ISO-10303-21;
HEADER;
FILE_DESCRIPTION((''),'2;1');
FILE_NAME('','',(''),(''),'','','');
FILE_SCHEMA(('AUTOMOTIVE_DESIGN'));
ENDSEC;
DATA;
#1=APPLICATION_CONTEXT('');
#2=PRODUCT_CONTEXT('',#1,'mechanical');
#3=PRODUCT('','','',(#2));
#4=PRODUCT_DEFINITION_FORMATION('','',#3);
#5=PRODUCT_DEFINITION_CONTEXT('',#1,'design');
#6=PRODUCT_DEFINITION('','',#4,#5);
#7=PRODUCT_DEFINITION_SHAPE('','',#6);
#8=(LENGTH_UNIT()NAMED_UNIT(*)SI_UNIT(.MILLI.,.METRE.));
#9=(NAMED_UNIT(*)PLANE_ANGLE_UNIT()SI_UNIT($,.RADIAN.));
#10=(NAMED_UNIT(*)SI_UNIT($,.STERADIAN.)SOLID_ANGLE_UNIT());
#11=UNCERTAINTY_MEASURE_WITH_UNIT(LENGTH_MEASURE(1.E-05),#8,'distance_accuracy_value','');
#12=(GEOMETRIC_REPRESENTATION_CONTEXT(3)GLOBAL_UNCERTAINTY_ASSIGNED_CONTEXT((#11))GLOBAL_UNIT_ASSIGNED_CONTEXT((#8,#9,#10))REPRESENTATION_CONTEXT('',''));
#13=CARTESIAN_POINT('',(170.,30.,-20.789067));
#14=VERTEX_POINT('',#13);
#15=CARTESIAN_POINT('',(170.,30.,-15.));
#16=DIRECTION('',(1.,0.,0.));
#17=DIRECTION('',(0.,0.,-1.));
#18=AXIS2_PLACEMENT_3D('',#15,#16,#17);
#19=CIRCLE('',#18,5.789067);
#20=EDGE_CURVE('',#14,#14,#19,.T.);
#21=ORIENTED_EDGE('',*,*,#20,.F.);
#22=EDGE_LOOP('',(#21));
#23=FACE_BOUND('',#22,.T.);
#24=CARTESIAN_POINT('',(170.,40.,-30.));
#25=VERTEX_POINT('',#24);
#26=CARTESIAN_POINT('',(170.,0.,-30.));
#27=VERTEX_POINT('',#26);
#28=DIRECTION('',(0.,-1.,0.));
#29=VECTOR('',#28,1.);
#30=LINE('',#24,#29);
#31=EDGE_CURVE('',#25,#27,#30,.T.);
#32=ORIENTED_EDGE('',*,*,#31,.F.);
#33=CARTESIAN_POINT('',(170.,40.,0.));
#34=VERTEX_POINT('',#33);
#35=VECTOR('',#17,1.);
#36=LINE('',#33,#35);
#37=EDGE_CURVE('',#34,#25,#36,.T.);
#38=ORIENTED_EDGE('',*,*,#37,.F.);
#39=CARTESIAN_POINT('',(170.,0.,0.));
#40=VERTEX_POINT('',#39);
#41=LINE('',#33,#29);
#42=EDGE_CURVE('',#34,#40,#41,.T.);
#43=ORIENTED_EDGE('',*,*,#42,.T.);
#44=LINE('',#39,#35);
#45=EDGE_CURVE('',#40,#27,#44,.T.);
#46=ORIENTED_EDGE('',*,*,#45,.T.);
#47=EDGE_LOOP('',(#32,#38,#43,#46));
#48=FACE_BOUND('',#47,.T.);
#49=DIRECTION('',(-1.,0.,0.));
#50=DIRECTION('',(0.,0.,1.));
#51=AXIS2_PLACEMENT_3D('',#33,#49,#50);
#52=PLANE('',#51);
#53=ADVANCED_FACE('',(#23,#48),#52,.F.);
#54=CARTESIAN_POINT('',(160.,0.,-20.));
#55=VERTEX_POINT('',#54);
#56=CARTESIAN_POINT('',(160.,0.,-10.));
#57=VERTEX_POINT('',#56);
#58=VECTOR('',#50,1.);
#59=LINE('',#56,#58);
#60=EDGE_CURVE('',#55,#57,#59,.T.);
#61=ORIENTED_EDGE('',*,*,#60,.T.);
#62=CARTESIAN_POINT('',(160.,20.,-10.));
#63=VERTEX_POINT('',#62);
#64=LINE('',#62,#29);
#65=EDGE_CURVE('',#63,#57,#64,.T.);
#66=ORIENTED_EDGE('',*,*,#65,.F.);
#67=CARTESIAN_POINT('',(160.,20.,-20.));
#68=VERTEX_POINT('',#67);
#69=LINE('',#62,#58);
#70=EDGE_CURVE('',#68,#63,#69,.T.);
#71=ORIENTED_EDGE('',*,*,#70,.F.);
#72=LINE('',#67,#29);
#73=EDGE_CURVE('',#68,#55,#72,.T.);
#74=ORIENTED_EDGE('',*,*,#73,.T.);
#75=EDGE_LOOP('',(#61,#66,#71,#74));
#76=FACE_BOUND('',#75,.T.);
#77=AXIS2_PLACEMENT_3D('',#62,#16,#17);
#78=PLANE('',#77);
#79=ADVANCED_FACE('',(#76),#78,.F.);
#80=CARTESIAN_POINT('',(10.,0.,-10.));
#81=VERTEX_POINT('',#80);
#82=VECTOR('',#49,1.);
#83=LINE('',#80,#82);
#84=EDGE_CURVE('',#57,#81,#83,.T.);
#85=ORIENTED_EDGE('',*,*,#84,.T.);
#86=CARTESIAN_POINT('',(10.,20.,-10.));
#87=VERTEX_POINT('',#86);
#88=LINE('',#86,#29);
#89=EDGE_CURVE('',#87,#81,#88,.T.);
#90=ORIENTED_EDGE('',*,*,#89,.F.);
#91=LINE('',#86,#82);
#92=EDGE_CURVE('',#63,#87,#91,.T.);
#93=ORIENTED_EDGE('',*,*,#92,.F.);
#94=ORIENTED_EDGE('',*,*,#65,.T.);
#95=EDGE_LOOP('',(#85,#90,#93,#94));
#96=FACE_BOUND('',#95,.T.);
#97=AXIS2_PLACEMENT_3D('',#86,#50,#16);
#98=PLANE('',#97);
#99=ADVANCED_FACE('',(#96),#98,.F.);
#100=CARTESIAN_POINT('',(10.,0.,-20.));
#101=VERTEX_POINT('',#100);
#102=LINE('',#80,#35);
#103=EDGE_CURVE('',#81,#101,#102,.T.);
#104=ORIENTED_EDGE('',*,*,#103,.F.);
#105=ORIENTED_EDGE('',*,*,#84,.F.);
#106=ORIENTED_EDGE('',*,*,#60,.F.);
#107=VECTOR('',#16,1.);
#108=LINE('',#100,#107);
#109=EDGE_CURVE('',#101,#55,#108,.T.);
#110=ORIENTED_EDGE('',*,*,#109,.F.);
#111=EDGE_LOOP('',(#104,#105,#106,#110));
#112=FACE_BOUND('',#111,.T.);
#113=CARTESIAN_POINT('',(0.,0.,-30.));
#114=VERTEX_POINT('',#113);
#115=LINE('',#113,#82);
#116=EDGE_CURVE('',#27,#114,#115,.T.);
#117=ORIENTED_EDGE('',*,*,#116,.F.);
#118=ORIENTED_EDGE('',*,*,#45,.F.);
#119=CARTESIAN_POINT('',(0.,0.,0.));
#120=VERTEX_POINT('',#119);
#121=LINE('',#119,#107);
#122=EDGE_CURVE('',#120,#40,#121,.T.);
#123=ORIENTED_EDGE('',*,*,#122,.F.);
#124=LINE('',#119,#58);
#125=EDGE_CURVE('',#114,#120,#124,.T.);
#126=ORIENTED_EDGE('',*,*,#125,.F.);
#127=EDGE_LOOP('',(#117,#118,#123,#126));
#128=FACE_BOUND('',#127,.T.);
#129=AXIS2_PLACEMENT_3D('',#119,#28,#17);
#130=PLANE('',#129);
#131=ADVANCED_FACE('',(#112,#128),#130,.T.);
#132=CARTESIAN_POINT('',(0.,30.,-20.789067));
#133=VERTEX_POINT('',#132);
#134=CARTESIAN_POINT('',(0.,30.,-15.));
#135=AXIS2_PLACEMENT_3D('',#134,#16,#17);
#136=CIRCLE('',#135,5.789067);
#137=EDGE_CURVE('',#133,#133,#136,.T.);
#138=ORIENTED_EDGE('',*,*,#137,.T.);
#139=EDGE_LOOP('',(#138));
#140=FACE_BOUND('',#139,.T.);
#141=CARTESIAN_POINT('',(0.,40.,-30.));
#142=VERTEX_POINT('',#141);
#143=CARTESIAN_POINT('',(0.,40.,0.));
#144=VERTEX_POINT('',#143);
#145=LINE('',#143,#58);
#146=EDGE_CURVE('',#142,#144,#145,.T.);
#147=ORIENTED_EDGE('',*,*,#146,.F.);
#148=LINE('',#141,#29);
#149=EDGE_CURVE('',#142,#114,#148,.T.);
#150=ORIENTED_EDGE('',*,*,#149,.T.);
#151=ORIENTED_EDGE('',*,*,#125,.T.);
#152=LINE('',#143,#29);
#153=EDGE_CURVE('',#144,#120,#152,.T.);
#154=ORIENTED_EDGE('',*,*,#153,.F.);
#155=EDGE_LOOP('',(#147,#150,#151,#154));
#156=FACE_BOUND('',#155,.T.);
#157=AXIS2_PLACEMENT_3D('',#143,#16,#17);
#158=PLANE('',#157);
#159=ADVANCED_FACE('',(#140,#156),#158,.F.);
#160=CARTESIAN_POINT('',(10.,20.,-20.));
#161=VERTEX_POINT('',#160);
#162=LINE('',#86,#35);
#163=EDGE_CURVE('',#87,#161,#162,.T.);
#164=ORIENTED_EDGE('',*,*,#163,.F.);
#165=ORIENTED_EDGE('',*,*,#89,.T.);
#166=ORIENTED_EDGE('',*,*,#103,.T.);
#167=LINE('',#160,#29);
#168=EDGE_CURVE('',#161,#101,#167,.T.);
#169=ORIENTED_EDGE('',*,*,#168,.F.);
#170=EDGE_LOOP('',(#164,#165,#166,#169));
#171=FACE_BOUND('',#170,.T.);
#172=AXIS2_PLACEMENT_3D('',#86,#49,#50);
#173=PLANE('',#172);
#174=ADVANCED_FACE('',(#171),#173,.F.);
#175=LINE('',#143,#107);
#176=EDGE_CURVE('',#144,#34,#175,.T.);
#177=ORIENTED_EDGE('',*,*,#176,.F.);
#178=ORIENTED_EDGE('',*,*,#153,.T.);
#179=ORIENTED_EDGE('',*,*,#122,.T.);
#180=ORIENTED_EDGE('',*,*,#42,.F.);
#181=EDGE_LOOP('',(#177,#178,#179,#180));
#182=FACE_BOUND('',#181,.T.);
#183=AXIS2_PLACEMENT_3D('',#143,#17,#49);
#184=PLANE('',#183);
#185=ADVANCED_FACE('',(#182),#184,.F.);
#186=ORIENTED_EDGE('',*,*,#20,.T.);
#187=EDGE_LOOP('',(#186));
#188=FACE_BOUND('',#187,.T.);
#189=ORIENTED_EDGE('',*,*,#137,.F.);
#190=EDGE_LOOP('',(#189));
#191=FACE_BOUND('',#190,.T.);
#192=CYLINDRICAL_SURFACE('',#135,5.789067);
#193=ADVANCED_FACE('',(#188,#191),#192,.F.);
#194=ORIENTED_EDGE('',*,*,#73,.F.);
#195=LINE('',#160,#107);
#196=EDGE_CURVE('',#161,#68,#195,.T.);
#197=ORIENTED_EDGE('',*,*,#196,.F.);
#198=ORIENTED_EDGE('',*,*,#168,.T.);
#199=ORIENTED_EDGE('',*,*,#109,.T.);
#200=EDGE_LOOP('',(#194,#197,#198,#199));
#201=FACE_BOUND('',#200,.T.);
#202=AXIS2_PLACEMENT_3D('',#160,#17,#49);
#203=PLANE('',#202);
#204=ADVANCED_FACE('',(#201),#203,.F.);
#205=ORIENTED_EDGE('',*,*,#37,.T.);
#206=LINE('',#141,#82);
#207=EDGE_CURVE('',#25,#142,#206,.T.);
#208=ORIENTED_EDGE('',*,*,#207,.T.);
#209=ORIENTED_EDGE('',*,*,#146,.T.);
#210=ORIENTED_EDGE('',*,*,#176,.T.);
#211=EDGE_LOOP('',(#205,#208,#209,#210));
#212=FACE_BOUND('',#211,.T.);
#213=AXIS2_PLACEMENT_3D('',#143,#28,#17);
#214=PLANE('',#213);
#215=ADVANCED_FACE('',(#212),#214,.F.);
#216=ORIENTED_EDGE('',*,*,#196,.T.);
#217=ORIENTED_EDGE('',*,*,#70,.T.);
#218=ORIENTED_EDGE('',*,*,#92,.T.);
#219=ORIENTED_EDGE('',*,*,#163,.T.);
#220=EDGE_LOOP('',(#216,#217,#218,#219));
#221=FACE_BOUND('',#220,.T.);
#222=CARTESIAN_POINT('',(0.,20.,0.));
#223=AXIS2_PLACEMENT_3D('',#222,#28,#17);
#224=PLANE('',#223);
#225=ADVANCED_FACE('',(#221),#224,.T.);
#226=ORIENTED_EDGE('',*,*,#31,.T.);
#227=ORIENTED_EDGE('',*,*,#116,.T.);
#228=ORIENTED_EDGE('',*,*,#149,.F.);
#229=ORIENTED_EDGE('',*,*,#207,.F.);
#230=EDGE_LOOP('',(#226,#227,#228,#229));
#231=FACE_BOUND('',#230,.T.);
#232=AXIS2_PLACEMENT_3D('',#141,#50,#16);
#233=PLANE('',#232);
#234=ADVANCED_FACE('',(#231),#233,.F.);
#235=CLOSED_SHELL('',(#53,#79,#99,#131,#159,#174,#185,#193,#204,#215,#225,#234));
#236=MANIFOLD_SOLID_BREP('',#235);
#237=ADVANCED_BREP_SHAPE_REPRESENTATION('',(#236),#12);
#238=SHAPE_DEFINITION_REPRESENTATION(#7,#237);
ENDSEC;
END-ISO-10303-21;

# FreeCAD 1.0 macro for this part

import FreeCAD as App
import Part
import Sketcher
Q = App.Units.Quantity


def add_polygon(sketch, points):
    """Adds a closed chain of lines whose ends are joined by coincident constraints."""
    first, n = sketch.GeometryCount, len(points)
    for a, b in zip(points, points[1:] + points[:1]):
        sketch.addGeometry(Part.LineSegment(App.Vector(*a, 0), App.Vector(*b, 0)), False)
    for i in range(n):
        sketch.addConstraint(Sketcher.Constraint("Coincident", first + i, 2, first + (i + 1) % n, 1))

doc = App.newDocument("Part")
body = doc.addObject("PartDesign::Body", "Body")

# Sketch on XZ plane
sketch1 = doc.addObject("Sketcher::SketchObject", "Sketch")
body.addObject(sketch1)
sketch1.AttachmentSupport = (doc.XZ_Plane, [""])
sketch1.MapMode = "FlatFace"
add_polygon(sketch1, [(0, -30), (0, 0), (170, 0), (170, -30)])  # lines 0-3
sketch1.addConstraint(Sketcher.Constraint("Vertical", 0))
sketch1.addConstraint(Sketcher.Constraint("Horizontal", 1))
sketch1.addConstraint(Sketcher.Constraint("Vertical", 2))
sketch1.addConstraint(Sketcher.Constraint("Horizontal", 3))
sketch1.addConstraint(Sketcher.Constraint("Coincident", 0, 2, -1, 1))
sketch1.addConstraint(Sketcher.Constraint("DistanceX", 1, 1, 1, 2, Q("170 mm")))
sketch1.addConstraint(Sketcher.Constraint("DistanceY", 0, 1, 0, 2, Q("30 mm")))
pad1 = doc.addObject("PartDesign::Pad", "Pad")
body.addObject(pad1)
pad1.Profile = sketch1
pad1.Length = 40
pad1.Reversed = True

# Sketch on XZ plane
sketch2 = doc.addObject("Sketcher::SketchObject", "Sketch001")
body.addObject(sketch2)
sketch2.AttachmentSupport = (doc.XZ_Plane, [""])
sketch2.MapMode = "FlatFace"
add_polygon(sketch2, [(10, -10), (10, -20), (160, -20), (160, -10)])  # lines 0-3
sketch2.addConstraint(Sketcher.Constraint("Vertical", 0))
sketch2.addConstraint(Sketcher.Constraint("Horizontal", 1))
sketch2.addConstraint(Sketcher.Constraint("Vertical", 2))
sketch2.addConstraint(Sketcher.Constraint("Horizontal", 3))
sketch2.addConstraint(Sketcher.Constraint("DistanceX", 1, 1, 1, 2, Q("150 mm")))
sketch2.addConstraint(Sketcher.Constraint("DistanceY", 0, 2, 0, 1, Q("10 mm")))
sketch2.addConstraint(Sketcher.Constraint("DistanceX", -1, 1, 0, 2, Q("10 mm")))
sketch2.addConstraint(Sketcher.Constraint("DistanceY", 0, 2, -1, 1, Q("20 mm")))
pocket1 = doc.addObject("PartDesign::Pocket", "Pocket")
body.addObject(pocket1)
pocket1.Profile = sketch2
pocket1.Length = 20

# Sketch on YZ plane
sketch3 = doc.addObject("Sketcher::SketchObject", "Sketch002")
body.addObject(sketch3)
sketch3.AttachmentSupport = (doc.YZ_Plane, [""])
sketch3.MapMode = "FlatFace"
sketch3.AttachmentOffset = App.Placement(App.Vector(0, 0, 170), App.Rotation())
sketch3.addGeometry(Part.Circle(App.Vector(30, -15, 0), App.Vector(0, 0, 1), 6), False)
sketch3.addConstraint(Sketcher.Constraint("DistanceX", -1, 1, 0, 3, Q("30 mm")))
sketch3.addConstraint(Sketcher.Constraint("DistanceY", 0, 3, -1, 1, Q("15 mm")))
sketch3.addConstraint(Sketcher.Constraint("Diameter", 0, Q("11.578135 mm")))
pocket2 = doc.addObject("PartDesign::Pocket", "Pocket001")
body.addObject(pocket2)
pocket2.Profile = sketch3
pocket2.Length = 170

doc.recompute()
